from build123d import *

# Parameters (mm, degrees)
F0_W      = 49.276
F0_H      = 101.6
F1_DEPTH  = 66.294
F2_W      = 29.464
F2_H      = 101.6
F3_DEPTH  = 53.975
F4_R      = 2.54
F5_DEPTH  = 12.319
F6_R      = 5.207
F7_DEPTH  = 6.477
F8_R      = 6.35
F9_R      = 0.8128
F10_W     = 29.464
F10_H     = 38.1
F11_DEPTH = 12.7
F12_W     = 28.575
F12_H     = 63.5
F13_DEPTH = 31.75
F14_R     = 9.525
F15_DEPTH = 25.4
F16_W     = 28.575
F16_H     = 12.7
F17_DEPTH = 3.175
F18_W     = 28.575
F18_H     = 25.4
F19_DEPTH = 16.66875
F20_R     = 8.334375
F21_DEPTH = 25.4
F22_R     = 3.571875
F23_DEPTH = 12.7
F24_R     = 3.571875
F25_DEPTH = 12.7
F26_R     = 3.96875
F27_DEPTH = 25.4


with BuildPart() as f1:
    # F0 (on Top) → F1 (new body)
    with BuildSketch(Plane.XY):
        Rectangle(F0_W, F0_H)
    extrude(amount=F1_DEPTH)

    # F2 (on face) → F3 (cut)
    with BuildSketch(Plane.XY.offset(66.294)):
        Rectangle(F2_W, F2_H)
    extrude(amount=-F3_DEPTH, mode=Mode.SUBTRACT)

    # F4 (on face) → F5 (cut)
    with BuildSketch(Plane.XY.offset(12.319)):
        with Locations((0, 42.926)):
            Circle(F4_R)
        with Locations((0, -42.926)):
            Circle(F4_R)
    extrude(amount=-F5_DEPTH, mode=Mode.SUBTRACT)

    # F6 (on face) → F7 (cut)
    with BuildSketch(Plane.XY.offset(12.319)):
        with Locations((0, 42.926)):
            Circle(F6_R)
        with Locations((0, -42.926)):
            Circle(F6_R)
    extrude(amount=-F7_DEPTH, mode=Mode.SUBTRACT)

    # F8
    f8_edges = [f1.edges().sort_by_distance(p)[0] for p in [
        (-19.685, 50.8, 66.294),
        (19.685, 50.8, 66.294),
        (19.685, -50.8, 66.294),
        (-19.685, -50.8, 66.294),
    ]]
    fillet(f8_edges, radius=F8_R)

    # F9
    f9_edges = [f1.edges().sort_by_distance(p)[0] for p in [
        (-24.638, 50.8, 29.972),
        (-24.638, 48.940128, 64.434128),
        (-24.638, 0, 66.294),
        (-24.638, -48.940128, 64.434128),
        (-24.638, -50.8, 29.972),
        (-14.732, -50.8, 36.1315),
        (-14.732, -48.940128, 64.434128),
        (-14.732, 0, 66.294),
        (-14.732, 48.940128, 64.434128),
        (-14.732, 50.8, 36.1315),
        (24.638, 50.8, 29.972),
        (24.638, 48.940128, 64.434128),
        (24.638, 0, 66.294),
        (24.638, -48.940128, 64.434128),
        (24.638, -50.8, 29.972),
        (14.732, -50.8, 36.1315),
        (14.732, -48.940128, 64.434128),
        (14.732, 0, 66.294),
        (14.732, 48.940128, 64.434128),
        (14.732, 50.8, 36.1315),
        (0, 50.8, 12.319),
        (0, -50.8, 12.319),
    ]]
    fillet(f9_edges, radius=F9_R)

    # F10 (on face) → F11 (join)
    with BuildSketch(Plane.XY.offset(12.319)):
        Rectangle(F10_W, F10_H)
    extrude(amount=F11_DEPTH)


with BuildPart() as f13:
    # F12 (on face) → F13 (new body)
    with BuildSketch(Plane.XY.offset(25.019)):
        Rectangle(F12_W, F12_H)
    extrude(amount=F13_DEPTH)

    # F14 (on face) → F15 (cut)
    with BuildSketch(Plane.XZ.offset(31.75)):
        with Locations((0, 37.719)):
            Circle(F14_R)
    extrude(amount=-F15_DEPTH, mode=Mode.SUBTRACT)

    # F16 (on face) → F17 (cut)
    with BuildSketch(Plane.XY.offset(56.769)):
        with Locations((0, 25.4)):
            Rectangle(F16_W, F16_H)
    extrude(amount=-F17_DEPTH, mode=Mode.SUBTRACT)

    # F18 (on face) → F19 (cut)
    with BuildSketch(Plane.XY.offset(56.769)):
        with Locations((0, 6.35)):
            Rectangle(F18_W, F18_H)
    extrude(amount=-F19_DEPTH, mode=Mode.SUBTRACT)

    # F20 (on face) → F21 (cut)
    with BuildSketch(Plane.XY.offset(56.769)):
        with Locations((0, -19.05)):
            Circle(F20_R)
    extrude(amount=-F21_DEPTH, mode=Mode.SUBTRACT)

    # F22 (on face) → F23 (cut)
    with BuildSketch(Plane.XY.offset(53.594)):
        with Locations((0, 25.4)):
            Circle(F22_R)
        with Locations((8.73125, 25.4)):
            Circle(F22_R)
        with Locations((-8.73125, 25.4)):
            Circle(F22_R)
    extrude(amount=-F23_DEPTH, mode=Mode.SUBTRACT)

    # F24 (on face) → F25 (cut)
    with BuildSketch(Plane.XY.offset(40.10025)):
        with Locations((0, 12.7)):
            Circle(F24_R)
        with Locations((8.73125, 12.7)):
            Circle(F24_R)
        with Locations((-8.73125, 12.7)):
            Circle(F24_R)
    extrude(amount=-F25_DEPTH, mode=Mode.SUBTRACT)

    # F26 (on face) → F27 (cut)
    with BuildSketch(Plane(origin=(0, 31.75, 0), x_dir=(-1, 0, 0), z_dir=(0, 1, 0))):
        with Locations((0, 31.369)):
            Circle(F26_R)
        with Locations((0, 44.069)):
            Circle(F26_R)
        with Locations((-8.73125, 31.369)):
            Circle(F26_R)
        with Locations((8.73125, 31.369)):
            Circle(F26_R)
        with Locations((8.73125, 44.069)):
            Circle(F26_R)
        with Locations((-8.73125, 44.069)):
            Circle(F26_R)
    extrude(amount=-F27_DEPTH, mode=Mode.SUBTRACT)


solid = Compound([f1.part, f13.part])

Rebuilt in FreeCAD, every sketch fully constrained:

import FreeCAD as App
import Part
import Sketcher
from FreeCAD import Vector
Q = App.Units.Quantity


def edges_at(feature, points):
    """Names of the edges that pass closest to the given points."""
    edges = feature.Shape.Edges
    near = lambda p: min(range(len(edges)), key=lambda i: edges[i].distToShape(Part.Vertex(*p))[0])
    return sorted({f"Edge{near(p) + 1}" for p in points})

doc = App.newDocument("Part")
body = doc.addObject("PartDesign::Body", "Body")

# Sketch on XY plane
sketch1 = doc.addObject("Sketcher::SketchObject", "Sketch")
body.addObject(sketch1)
sketch1.AttachmentSupport = (doc.XY_Plane, [""])
sketch1.MapMode = "FlatFace"
sketch1.addGeometry([
    Part.LineSegment(Vector(-25, 51, 0), Vector(-25, -51, 0)),
    Part.LineSegment(Vector(-25, -51, 0), Vector(25, -51, 0)),
    Part.LineSegment(Vector(25, -51, 0), Vector(25, 51, 0)),
    Part.LineSegment(Vector(25, 51, 0), Vector(-25, 51, 0)),
], False)
sketch1.addConstraint([
    Sketcher.Constraint("Coincident", 0, 2, 1, 1),
    Sketcher.Constraint("Coincident", 1, 2, 2, 1),
    Sketcher.Constraint("Coincident", 2, 2, 3, 1),
    Sketcher.Constraint("Coincident", 3, 2, 0, 1),
    Sketcher.Constraint("Vertical", 0),
    Sketcher.Constraint("Horizontal", 1),
    Sketcher.Constraint("Vertical", 2),
    Sketcher.Constraint("Horizontal", 3),
    Sketcher.Constraint("Symmetric", 0, 2, 2, 2, -1, 1),
    Sketcher.Constraint("DistanceY", 0, 2, 0, 1, Q("4 in")),
    Sketcher.Constraint("DistanceX", 1, 1, 1, 2, Q("1.94 in")),
])
pad1 = doc.addObject("PartDesign::Pad", "Pad")
body.addObject(pad1)
pad1.Profile = sketch1
pad1.Length = Q("2.61 in")

# Sketch on XY plane
sketch2 = doc.addObject("Sketcher::SketchObject", "Sketch001")
body.addObject(sketch2)
sketch2.AttachmentSupport = (doc.XY_Plane, [""])
sketch2.MapMode = "FlatFace"
sketch2.AttachmentOffset = App.Placement(Vector(0, 0, 2.61 * 25.4), App.Rotation())
sketch2.addGeometry([
    Part.LineSegment(Vector(-15, 51, 0), Vector(-15, -51, 0)),
    Part.LineSegment(Vector(-15, -51, 0), Vector(15, -51, 0)),
    Part.LineSegment(Vector(15, -51, 0), Vector(15, 51, 0)),
    Part.LineSegment(Vector(15, 51, 0), Vector(-15, 51, 0)),
], False)
sketch2.addConstraint([
    Sketcher.Constraint("Coincident", 0, 2, 1, 1),
    Sketcher.Constraint("Coincident", 1, 2, 2, 1),
    Sketcher.Constraint("Coincident", 2, 2, 3, 1),
    Sketcher.Constraint("Coincident", 3, 2, 0, 1),
    Sketcher.Constraint("Vertical", 0),
    Sketcher.Constraint("Horizontal", 1),
    Sketcher.Constraint("Vertical", 2),
    Sketcher.Constraint("Horizontal", 3),
    Sketcher.Constraint("Symmetric", 0, 2, 2, 2, -1, 1),
    Sketcher.Constraint("DistanceY", 0, 2, 0, 1, Q("4 in")),
    Sketcher.Constraint("DistanceX", 1, 1, 1, 2, Q("1.16 in")),
])
pocket1 = doc.addObject("PartDesign::Pocket", "Pocket")
body.addObject(pocket1)
pocket1.Profile = sketch2
pocket1.Length = Q("2.125 in")

# Sketch on XY plane
sketch3 = doc.addObject("Sketcher::SketchObject", "Sketch002")
body.addObject(sketch3)
sketch3.AttachmentSupport = (doc.XY_Plane, [""])
sketch3.MapMode = "FlatFace"
sketch3.AttachmentOffset = App.Placement(Vector(0, 0, 0.485 * 25.4), App.Rotation())
sketch3.addGeometry([
    Part.Circle(Vector(0, 42.9, 0), Vector(0, 0, 1), 2.5),
    Part.Circle(Vector(0, -42.9, 0), Vector(0, 0, 1), 2.5),
], False)
sketch3.addConstraint([
    Sketcher.Constraint("Equal", 0, 1),
    Sketcher.Constraint("Symmetric", 0, 3, 1, 3, -1, 1),
    Sketcher.Constraint("PointOnObject", 0, 3, -2),
    Sketcher.Constraint("Diameter", 0, Q("0.2 in")),
    Sketcher.Constraint("DistanceY", -1, 1, 0, 3, Q("1.69 in")),
])
pocket2 = doc.addObject("PartDesign::Pocket", "Pocket001")
body.addObject(pocket2)
pocket2.Profile = sketch3
pocket2.Length = Q("0.485 in")

# Sketch on XY plane
sketch4 = doc.addObject("Sketcher::SketchObject", "Sketch003")
body.addObject(sketch4)
sketch4.AttachmentSupport = (doc.XY_Plane, [""])
sketch4.MapMode = "FlatFace"
sketch4.AttachmentOffset = App.Placement(Vector(0, 0, 0.485 * 25.4), App.Rotation())
sketch4.addGeometry([
    Part.Circle(Vector(0, 43, 0), Vector(0, 0, 1), 5),
    Part.Circle(Vector(0, -43, 0), Vector(0, 0, 1), 5),
], False)
sketch4.addConstraint([
    Sketcher.Constraint("Equal", 0, 1),
    Sketcher.Constraint("Symmetric", 0, 3, 1, 3, -1, 1),
    Sketcher.Constraint("PointOnObject", 0, 3, -2),
    Sketcher.Constraint("Diameter", 0, Q("0.41 in")),
    Sketcher.Constraint("DistanceY", -1, 1, 0, 3, Q("1.69 in")),
])
pocket3 = doc.addObject("PartDesign::Pocket", "Pocket002")
body.addObject(pocket3)
pocket3.Profile = sketch4
pocket3.Length = Q("0.255 in")
doc.recompute()

fillet = doc.addObject("PartDesign::Fillet", "Fillet")
body.addObject(fillet)
fillet.Base = (pocket3, edges_at(pocket3, [
    (-19.685, 50.8, 66.294),
    (19.685, 50.8, 66.294),
    (19.685, -50.8, 66.294),
    (-19.685, -50.8, 66.294),
]))
fillet.Radius = Q("0.25 in")
doc.recompute()

fillet2 = doc.addObject("PartDesign::Fillet", "Fillet001")
body.addObject(fillet2)
fillet2.Base = (fillet, edges_at(fillet, [
    (-24.638, 50.8, 29.972),
    (-24.638, 48.94, 64.434),
    (-24.638, 0, 66.294),
    (-24.638, -48.94, 64.434),
    (-24.638, -50.8, 29.972),
    (-14.732, -50.8, 36.132),
    (-14.732, -48.94, 64.434),
    (-14.732, 0, 66.294),
    (-14.732, 48.94, 64.434),
    (-14.732, 50.8, 36.132),
    (24.638, 50.8, 29.972),
    (24.638, 48.94, 64.434),
    (24.638, 0, 66.294),
    (24.638, -48.94, 64.434),
    (24.638, -50.8, 29.972),
    (14.732, -50.8, 36.132),
    (14.732, -48.94, 64.434),
    (14.732, 0, 66.294),
    (14.732, 48.94, 64.434),
    (14.732, 50.8, 36.132),
    (0, 50.8, 12.319),
    (0, -50.8, 12.319),
]))
fillet2.Radius = Q("0.032 in")

# Sketch on XY plane
sketch5 = doc.addObject("Sketcher::SketchObject", "Sketch004")
body.addObject(sketch5)
sketch5.AttachmentSupport = (doc.XY_Plane, [""])
sketch5.MapMode = "FlatFace"
sketch5.AttachmentOffset = App.Placement(Vector(0, 0, 0.485 * 25.4), App.Rotation())
sketch5.addGeometry([
    Part.LineSegment(Vector(-15, 19, 0), Vector(-15, -19, 0)),
    Part.LineSegment(Vector(-15, -19, 0), Vector(15, -19, 0)),
    Part.LineSegment(Vector(15, -19, 0), Vector(15, 19, 0)),
    Part.LineSegment(Vector(15, 19, 0), Vector(-15, 19, 0)),
], False)
sketch5.addConstraint([
    Sketcher.Constraint("Coincident", 0, 2, 1, 1),
    Sketcher.Constraint("Coincident", 1, 2, 2, 1),
    Sketcher.Constraint("Coincident", 2, 2, 3, 1),
    Sketcher.Constraint("Coincident", 3, 2, 0, 1),
    Sketcher.Constraint("Vertical", 0),
    Sketcher.Constraint("Horizontal", 1),
    Sketcher.Constraint("Vertical", 2),
    Sketcher.Constraint("Horizontal", 3),
    Sketcher.Constraint("Symmetric", 0, 2, 2, 2, -1, 1),
    Sketcher.Constraint("DistanceY", 0, 2, 0, 1, Q("1.5 in")),
    Sketcher.Constraint("DistanceX", 1, 1, 1, 2, Q("1.16 in")),
])
pad2 = doc.addObject("PartDesign::Pad", "Pad001")
body.addObject(pad2)
pad2.Profile = sketch5
pad2.Length = Q("0.5 in")
body2 = doc.addObject("PartDesign::Body", "Body001")

# Sketch on XY plane
sketch6 = doc.addObject("Sketcher::SketchObject", "Sketch005")
body2.addObject(sketch6)
sketch6.AttachmentSupport = (doc.getObject("XY_Plane001"), [""])
sketch6.MapMode = "FlatFace"
sketch6.AttachmentOffset = App.Placement(Vector(0, 0, 0.985 * 25.4), App.Rotation())
sketch6.addGeometry([
    Part.LineSegment(Vector(-14, 32, 0), Vector(-14, -32, 0)),
    Part.LineSegment(Vector(-14, -32, 0), Vector(14, -32, 0)),
    Part.LineSegment(Vector(14, -32, 0), Vector(14, 32, 0)),
    Part.LineSegment(Vector(14, 32, 0), Vector(-14, 32, 0)),
], False)
sketch6.addConstraint([
    Sketcher.Constraint("Coincident", 0, 2, 1, 1),
    Sketcher.Constraint("Coincident", 1, 2, 2, 1),
    Sketcher.Constraint("Coincident", 2, 2, 3, 1),
    Sketcher.Constraint("Coincident", 3, 2, 0, 1),
    Sketcher.Constraint("Vertical", 0),
    Sketcher.Constraint("Horizontal", 1),
    Sketcher.Constraint("Vertical", 2),
    Sketcher.Constraint("Horizontal", 3),
    Sketcher.Constraint("Symmetric", 0, 2, 2, 2, -1, 1),
    Sketcher.Constraint("DistanceY", 0, 2, 0, 1, Q("2.5 in")),
    Sketcher.Constraint("DistanceX", 1, 1, 1, 2, Q("1.125 in")),
])
pad3 = doc.addObject("PartDesign::Pad", "Pad002")
body2.addObject(pad3)
pad3.Profile = sketch6
pad3.Length = Q("1.25 in")

# Sketch on XZ plane
sketch7 = doc.addObject("Sketcher::SketchObject", "Sketch006")
body2.addObject(sketch7)
sketch7.AttachmentSupport = (doc.getObject("XZ_Plane001"), [""])
sketch7.MapMode = "FlatFace"
sketch7.AttachmentOffset = App.Placement(Vector(0, 0, 1.25 * 25.4), App.Rotation())
sketch7.addGeometry(Part.Circle(Vector(0, 38, 0), Vector(0, 0, 1), 10), False)
sketch7.addConstraint([
    Sketcher.Constraint("PointOnObject", 0, 3, -2),
    Sketcher.Constraint("Diameter", 0, Q("0.75 in")),
    Sketcher.Constraint("DistanceY", -1, 1, 0, 3, Q("1.485 in")),
])
pocket4 = doc.addObject("PartDesign::Pocket", "Pocket003")
body2.addObject(pocket4)
pocket4.Profile = sketch7
pocket4.Length = Q("1 in")

# Sketch on XY plane
sketch8 = doc.addObject("Sketcher::SketchObject", "Sketch007")
body2.addObject(sketch8)
sketch8.AttachmentSupport = (doc.getObject("XY_Plane001"), [""])
sketch8.MapMode = "FlatFace"
sketch8.AttachmentOffset = App.Placement(Vector(0, 0, 2.235 * 25.4), App.Rotation())
sketch8.addGeometry([
    Part.LineSegment(Vector(-14, 32, 0), Vector(-14, 19, 0)),
    Part.LineSegment(Vector(-14, 19, 0), Vector(14, 19, 0)),
    Part.LineSegment(Vector(14, 19, 0), Vector(14, 32, 0)),
    Part.LineSegment(Vector(14, 32, 0), Vector(-14, 32, 0)),
], False)
sketch8.addConstraint([
    Sketcher.Constraint("Coincident", 0, 2, 1, 1),
    Sketcher.Constraint("Coincident", 1, 2, 2, 1),
    Sketcher.Constraint("Coincident", 2, 2, 3, 1),
    Sketcher.Constraint("Coincident", 3, 2, 0, 1),
    Sketcher.Constraint("Vertical", 0),
    Sketcher.Constraint("Horizontal", 1),
    Sketcher.Constraint("Vertical", 2),
    Sketcher.Constraint("Horizontal", 3),
    Sketcher.Constraint("DistanceY", 0, 2, 0, 1, Q("0.5 in")),
    Sketcher.Constraint("DistanceX", 1, 1, 1, 2, Q("1.125 in")),
    Sketcher.Constraint("DistanceY", -1, 1, 0, 2, Q("0.75 in")),
    Sketcher.Constraint("DistanceX", 0, 2, -1, 1, Q("0.5625 in")),
])
pocket5 = doc.addObject("PartDesign::Pocket", "Pocket004")
body2.addObject(pocket5)
pocket5.Profile = sketch8
pocket5.Length = Q("0.125 in")

# Sketch on XY plane
sketch9 = doc.addObject("Sketcher::SketchObject", "Sketch008")
body2.addObject(sketch9)
sketch9.AttachmentSupport = (doc.getObject("XY_Plane001"), [""])
sketch9.MapMode = "FlatFace"
sketch9.AttachmentOffset = App.Placement(Vector(0, 0, 2.235 * 25.4), App.Rotation())
sketch9.addGeometry([
    Part.LineSegment(Vector(-14, 19, 0), Vector(-14, -6, 0)),
    Part.LineSegment(Vector(-14, -6, 0), Vector(14, -6, 0)),
    Part.LineSegment(Vector(14, -6, 0), Vector(14, 19, 0)),
    Part.LineSegment(Vector(14, 19, 0), Vector(-14, 19, 0)),
], False)
sketch9.addConstraint([
    Sketcher.Constraint("Coincident", 0, 2, 1, 1),
    Sketcher.Constraint("Coincident", 1, 2, 2, 1),
    Sketcher.Constraint("Coincident", 2, 2, 3, 1),
    Sketcher.Constraint("Coincident", 3, 2, 0, 1),
    Sketcher.Constraint("Vertical", 0),
    Sketcher.Constraint("Horizontal", 1),
    Sketcher.Constraint("Vertical", 2),
    Sketcher.Constraint("Horizontal", 3),
    Sketcher.Constraint("DistanceY", 0, 2, 0, 1, Q("1 in")),
    Sketcher.Constraint("DistanceX", 1, 1, 1, 2, Q("1.125 in")),
    Sketcher.Constraint("DistanceY", 0, 2, -1, 1, Q("0.25 in")),
    Sketcher.Constraint("DistanceX", 0, 2, -1, 1, Q("0.5625 in")),
])
pocket6 = doc.addObject("PartDesign::Pocket", "Pocket005")
body2.addObject(pocket6)
pocket6.Profile = sketch9
pocket6.Length = Q("0.65625 in")

# Sketch on XY plane
sketch10 = doc.addObject("Sketcher::SketchObject", "Sketch009")
body2.addObject(sketch10)
sketch10.AttachmentSupport = (doc.getObject("XY_Plane001"), [""])
sketch10.MapMode = "FlatFace"
sketch10.AttachmentOffset = App.Placement(Vector(0, 0, 2.235 * 25.4), App.Rotation())
sketch10.addGeometry(Part.Circle(Vector(0, -19, 0), Vector(0, 0, 1), 8), False)
sketch10.addConstraint([
    Sketcher.Constraint("PointOnObject", 0, 3, -2),
    Sketcher.Constraint("Diameter", 0, Q("0.65625 in")),
    Sketcher.Constraint("DistanceY", 0, 3, -1, 1, Q("0.75 in")),
])
pocket7 = doc.addObject("PartDesign::Pocket", "Pocket006")
body2.addObject(pocket7)
pocket7.Profile = sketch10
pocket7.Length = Q("1 in")

# Sketch on XY plane
sketch11 = doc.addObject("Sketcher::SketchObject", "Sketch010")
body2.addObject(sketch11)
sketch11.AttachmentSupport = (doc.getObject("XY_Plane001"), [""])
sketch11.MapMode = "FlatFace"
sketch11.AttachmentOffset = App.Placement(Vector(0, 0, 2.11 * 25.4), App.Rotation())
sketch11.addGeometry([
    Part.Circle(Vector(0, 25.4, 0), Vector(0, 0, 1), 3.6),
    Part.Circle(Vector(8.7, 25.4, 0), Vector(0, 0, 1), 3.6),
    Part.Circle(Vector(-8.7, 25.4, 0), Vector(0, 0, 1), 3.6),
], False)
sketch11.addConstraint([
    Sketcher.Constraint("Equal", 0, 1),
    Sketcher.Constraint("Equal", 1, 2),
    Sketcher.Constraint("Symmetric", 1, 3, 2, 3, -2),
    Sketcher.Constraint("PointOnObject", 0, 3, -2),
    Sketcher.Constraint("Horizontal", 0, 3, 1, 3),
    Sketcher.Constraint("Diameter", 0, Q("0.28125 in")),
    Sketcher.Constraint("DistanceY", -1, 1, 0, 3, Q("1 in")),
    Sketcher.Constraint("DistanceX", -1, 1, 1, 3, Q("0.34375 in")),
])
pocket8 = doc.addObject("PartDesign::Pocket", "Pocket007")
body2.addObject(pocket8)
pocket8.Profile = sketch11
pocket8.Length = Q("0.5 in")

# Sketch on XY plane
sketch12 = doc.addObject("Sketcher::SketchObject", "Sketch011")
body2.addObject(sketch12)
sketch12.AttachmentSupport = (doc.getObject("XY_Plane001"), [""])
sketch12.MapMode = "FlatFace"
sketch12.AttachmentOffset = App.Placement(Vector(0, 0, 40.10025), App.Rotation())
sketch12.addGeometry([
    Part.Circle(Vector(0, 12.7, 0), Vector(0, 0, 1), 3.6),
    Part.Circle(Vector(8.7, 12.7, 0), Vector(0, 0, 1), 3.6),
    Part.Circle(Vector(-8.7, 12.7, 0), Vector(0, 0, 1), 3.6),
], False)
sketch12.addConstraint([
    Sketcher.Constraint("Equal", 0, 1),
    Sketcher.Constraint("Equal", 1, 2),
    Sketcher.Constraint("Symmetric", 1, 3, 2, 3, -2),
    Sketcher.Constraint("PointOnObject", 0, 3, -2),
    Sketcher.Constraint("Horizontal", 0, 3, 1, 3),
    Sketcher.Constraint("Diameter", 0, Q("0.28125 in")),
    Sketcher.Constraint("DistanceY", -1, 1, 0, 3, Q("0.5 in")),
    Sketcher.Constraint("DistanceX", -1, 1, 1, 3, Q("0.34375 in")),
])
pocket9 = doc.addObject("PartDesign::Pocket", "Pocket008")
body2.addObject(pocket9)
pocket9.Profile = sketch12
pocket9.Length = Q("0.5 in")

# Sketch on XZ plane
sketch13 = doc.addObject("Sketcher::SketchObject", "Sketch012")
body2.addObject(sketch13)
sketch13.AttachmentSupport = (doc.getObject("XZ_Plane001"), [""])
sketch13.MapMode = "FlatFace"
sketch13.AttachmentOffset = App.Placement(Vector(0, 0, -1.25 * 25.4), App.Rotation())
sketch13.addGeometry([
    Part.Circle(Vector(0, 31.4, 0), Vector(0, 0, 1), 4),  # 0
    Part.Circle(Vector(0, 44.1, 0), Vector(0, 0, 1), 4),  # 1
    Part.Circle(Vector(8.7, 31.4, 0), Vector(0, 0, 1), 4),  # 2
    Part.Circle(Vector(-8.7, 31.4, 0), Vector(0, 0, 1), 4),  # 3
    Part.Circle(Vector(-8.7, 44.1, 0), Vector(0, 0, 1), 4),  # 4
    Part.Circle(Vector(8.7, 44.1, 0), Vector(0, 0, 1), 4),  # 5
], False)
sketch13.addConstraint([
    Sketcher.Constraint("Equal", 0, 1),
    Sketcher.Constraint("Equal", 1, 2),
    Sketcher.Constraint("Equal", 2, 3),
    Sketcher.Constraint("Equal", 3, 4),
    Sketcher.Constraint("Equal", 4, 5),
    Sketcher.Constraint("Symmetric", 2, 3, 3, 3, -2),
    Sketcher.Constraint("Symmetric", 4, 3, 5, 3, -2),
    Sketcher.Constraint("PointOnObject", 0, 3, -2),
    Sketcher.Constraint("PointOnObject", 1, 3, -2),
    Sketcher.Constraint("Horizontal", 0, 3, 2, 3),
    Sketcher.Constraint("Horizontal", 1, 3, 4, 3),
    Sketcher.Constraint("Vertical", 3, 3, 4, 3),
    Sketcher.Constraint("Diameter", 0, Q("0.3125 in")),
    Sketcher.Constraint("DistanceY", 0, 3, 1, 3, Q("0.5 in")),
    Sketcher.Constraint("DistanceY", -1, 1, 0, 3, Q("1.235 in")),
    Sketcher.Constraint("DistanceX", -1, 1, 2, 3, Q("0.34375 in")),
])
pocket10 = doc.addObject("PartDesign::Pocket", "Pocket009")
body2.addObject(pocket10)
pocket10.Profile = sketch13
pocket10.Length = Q("1 in")
pocket10.Reversed = True

doc.recompute()
